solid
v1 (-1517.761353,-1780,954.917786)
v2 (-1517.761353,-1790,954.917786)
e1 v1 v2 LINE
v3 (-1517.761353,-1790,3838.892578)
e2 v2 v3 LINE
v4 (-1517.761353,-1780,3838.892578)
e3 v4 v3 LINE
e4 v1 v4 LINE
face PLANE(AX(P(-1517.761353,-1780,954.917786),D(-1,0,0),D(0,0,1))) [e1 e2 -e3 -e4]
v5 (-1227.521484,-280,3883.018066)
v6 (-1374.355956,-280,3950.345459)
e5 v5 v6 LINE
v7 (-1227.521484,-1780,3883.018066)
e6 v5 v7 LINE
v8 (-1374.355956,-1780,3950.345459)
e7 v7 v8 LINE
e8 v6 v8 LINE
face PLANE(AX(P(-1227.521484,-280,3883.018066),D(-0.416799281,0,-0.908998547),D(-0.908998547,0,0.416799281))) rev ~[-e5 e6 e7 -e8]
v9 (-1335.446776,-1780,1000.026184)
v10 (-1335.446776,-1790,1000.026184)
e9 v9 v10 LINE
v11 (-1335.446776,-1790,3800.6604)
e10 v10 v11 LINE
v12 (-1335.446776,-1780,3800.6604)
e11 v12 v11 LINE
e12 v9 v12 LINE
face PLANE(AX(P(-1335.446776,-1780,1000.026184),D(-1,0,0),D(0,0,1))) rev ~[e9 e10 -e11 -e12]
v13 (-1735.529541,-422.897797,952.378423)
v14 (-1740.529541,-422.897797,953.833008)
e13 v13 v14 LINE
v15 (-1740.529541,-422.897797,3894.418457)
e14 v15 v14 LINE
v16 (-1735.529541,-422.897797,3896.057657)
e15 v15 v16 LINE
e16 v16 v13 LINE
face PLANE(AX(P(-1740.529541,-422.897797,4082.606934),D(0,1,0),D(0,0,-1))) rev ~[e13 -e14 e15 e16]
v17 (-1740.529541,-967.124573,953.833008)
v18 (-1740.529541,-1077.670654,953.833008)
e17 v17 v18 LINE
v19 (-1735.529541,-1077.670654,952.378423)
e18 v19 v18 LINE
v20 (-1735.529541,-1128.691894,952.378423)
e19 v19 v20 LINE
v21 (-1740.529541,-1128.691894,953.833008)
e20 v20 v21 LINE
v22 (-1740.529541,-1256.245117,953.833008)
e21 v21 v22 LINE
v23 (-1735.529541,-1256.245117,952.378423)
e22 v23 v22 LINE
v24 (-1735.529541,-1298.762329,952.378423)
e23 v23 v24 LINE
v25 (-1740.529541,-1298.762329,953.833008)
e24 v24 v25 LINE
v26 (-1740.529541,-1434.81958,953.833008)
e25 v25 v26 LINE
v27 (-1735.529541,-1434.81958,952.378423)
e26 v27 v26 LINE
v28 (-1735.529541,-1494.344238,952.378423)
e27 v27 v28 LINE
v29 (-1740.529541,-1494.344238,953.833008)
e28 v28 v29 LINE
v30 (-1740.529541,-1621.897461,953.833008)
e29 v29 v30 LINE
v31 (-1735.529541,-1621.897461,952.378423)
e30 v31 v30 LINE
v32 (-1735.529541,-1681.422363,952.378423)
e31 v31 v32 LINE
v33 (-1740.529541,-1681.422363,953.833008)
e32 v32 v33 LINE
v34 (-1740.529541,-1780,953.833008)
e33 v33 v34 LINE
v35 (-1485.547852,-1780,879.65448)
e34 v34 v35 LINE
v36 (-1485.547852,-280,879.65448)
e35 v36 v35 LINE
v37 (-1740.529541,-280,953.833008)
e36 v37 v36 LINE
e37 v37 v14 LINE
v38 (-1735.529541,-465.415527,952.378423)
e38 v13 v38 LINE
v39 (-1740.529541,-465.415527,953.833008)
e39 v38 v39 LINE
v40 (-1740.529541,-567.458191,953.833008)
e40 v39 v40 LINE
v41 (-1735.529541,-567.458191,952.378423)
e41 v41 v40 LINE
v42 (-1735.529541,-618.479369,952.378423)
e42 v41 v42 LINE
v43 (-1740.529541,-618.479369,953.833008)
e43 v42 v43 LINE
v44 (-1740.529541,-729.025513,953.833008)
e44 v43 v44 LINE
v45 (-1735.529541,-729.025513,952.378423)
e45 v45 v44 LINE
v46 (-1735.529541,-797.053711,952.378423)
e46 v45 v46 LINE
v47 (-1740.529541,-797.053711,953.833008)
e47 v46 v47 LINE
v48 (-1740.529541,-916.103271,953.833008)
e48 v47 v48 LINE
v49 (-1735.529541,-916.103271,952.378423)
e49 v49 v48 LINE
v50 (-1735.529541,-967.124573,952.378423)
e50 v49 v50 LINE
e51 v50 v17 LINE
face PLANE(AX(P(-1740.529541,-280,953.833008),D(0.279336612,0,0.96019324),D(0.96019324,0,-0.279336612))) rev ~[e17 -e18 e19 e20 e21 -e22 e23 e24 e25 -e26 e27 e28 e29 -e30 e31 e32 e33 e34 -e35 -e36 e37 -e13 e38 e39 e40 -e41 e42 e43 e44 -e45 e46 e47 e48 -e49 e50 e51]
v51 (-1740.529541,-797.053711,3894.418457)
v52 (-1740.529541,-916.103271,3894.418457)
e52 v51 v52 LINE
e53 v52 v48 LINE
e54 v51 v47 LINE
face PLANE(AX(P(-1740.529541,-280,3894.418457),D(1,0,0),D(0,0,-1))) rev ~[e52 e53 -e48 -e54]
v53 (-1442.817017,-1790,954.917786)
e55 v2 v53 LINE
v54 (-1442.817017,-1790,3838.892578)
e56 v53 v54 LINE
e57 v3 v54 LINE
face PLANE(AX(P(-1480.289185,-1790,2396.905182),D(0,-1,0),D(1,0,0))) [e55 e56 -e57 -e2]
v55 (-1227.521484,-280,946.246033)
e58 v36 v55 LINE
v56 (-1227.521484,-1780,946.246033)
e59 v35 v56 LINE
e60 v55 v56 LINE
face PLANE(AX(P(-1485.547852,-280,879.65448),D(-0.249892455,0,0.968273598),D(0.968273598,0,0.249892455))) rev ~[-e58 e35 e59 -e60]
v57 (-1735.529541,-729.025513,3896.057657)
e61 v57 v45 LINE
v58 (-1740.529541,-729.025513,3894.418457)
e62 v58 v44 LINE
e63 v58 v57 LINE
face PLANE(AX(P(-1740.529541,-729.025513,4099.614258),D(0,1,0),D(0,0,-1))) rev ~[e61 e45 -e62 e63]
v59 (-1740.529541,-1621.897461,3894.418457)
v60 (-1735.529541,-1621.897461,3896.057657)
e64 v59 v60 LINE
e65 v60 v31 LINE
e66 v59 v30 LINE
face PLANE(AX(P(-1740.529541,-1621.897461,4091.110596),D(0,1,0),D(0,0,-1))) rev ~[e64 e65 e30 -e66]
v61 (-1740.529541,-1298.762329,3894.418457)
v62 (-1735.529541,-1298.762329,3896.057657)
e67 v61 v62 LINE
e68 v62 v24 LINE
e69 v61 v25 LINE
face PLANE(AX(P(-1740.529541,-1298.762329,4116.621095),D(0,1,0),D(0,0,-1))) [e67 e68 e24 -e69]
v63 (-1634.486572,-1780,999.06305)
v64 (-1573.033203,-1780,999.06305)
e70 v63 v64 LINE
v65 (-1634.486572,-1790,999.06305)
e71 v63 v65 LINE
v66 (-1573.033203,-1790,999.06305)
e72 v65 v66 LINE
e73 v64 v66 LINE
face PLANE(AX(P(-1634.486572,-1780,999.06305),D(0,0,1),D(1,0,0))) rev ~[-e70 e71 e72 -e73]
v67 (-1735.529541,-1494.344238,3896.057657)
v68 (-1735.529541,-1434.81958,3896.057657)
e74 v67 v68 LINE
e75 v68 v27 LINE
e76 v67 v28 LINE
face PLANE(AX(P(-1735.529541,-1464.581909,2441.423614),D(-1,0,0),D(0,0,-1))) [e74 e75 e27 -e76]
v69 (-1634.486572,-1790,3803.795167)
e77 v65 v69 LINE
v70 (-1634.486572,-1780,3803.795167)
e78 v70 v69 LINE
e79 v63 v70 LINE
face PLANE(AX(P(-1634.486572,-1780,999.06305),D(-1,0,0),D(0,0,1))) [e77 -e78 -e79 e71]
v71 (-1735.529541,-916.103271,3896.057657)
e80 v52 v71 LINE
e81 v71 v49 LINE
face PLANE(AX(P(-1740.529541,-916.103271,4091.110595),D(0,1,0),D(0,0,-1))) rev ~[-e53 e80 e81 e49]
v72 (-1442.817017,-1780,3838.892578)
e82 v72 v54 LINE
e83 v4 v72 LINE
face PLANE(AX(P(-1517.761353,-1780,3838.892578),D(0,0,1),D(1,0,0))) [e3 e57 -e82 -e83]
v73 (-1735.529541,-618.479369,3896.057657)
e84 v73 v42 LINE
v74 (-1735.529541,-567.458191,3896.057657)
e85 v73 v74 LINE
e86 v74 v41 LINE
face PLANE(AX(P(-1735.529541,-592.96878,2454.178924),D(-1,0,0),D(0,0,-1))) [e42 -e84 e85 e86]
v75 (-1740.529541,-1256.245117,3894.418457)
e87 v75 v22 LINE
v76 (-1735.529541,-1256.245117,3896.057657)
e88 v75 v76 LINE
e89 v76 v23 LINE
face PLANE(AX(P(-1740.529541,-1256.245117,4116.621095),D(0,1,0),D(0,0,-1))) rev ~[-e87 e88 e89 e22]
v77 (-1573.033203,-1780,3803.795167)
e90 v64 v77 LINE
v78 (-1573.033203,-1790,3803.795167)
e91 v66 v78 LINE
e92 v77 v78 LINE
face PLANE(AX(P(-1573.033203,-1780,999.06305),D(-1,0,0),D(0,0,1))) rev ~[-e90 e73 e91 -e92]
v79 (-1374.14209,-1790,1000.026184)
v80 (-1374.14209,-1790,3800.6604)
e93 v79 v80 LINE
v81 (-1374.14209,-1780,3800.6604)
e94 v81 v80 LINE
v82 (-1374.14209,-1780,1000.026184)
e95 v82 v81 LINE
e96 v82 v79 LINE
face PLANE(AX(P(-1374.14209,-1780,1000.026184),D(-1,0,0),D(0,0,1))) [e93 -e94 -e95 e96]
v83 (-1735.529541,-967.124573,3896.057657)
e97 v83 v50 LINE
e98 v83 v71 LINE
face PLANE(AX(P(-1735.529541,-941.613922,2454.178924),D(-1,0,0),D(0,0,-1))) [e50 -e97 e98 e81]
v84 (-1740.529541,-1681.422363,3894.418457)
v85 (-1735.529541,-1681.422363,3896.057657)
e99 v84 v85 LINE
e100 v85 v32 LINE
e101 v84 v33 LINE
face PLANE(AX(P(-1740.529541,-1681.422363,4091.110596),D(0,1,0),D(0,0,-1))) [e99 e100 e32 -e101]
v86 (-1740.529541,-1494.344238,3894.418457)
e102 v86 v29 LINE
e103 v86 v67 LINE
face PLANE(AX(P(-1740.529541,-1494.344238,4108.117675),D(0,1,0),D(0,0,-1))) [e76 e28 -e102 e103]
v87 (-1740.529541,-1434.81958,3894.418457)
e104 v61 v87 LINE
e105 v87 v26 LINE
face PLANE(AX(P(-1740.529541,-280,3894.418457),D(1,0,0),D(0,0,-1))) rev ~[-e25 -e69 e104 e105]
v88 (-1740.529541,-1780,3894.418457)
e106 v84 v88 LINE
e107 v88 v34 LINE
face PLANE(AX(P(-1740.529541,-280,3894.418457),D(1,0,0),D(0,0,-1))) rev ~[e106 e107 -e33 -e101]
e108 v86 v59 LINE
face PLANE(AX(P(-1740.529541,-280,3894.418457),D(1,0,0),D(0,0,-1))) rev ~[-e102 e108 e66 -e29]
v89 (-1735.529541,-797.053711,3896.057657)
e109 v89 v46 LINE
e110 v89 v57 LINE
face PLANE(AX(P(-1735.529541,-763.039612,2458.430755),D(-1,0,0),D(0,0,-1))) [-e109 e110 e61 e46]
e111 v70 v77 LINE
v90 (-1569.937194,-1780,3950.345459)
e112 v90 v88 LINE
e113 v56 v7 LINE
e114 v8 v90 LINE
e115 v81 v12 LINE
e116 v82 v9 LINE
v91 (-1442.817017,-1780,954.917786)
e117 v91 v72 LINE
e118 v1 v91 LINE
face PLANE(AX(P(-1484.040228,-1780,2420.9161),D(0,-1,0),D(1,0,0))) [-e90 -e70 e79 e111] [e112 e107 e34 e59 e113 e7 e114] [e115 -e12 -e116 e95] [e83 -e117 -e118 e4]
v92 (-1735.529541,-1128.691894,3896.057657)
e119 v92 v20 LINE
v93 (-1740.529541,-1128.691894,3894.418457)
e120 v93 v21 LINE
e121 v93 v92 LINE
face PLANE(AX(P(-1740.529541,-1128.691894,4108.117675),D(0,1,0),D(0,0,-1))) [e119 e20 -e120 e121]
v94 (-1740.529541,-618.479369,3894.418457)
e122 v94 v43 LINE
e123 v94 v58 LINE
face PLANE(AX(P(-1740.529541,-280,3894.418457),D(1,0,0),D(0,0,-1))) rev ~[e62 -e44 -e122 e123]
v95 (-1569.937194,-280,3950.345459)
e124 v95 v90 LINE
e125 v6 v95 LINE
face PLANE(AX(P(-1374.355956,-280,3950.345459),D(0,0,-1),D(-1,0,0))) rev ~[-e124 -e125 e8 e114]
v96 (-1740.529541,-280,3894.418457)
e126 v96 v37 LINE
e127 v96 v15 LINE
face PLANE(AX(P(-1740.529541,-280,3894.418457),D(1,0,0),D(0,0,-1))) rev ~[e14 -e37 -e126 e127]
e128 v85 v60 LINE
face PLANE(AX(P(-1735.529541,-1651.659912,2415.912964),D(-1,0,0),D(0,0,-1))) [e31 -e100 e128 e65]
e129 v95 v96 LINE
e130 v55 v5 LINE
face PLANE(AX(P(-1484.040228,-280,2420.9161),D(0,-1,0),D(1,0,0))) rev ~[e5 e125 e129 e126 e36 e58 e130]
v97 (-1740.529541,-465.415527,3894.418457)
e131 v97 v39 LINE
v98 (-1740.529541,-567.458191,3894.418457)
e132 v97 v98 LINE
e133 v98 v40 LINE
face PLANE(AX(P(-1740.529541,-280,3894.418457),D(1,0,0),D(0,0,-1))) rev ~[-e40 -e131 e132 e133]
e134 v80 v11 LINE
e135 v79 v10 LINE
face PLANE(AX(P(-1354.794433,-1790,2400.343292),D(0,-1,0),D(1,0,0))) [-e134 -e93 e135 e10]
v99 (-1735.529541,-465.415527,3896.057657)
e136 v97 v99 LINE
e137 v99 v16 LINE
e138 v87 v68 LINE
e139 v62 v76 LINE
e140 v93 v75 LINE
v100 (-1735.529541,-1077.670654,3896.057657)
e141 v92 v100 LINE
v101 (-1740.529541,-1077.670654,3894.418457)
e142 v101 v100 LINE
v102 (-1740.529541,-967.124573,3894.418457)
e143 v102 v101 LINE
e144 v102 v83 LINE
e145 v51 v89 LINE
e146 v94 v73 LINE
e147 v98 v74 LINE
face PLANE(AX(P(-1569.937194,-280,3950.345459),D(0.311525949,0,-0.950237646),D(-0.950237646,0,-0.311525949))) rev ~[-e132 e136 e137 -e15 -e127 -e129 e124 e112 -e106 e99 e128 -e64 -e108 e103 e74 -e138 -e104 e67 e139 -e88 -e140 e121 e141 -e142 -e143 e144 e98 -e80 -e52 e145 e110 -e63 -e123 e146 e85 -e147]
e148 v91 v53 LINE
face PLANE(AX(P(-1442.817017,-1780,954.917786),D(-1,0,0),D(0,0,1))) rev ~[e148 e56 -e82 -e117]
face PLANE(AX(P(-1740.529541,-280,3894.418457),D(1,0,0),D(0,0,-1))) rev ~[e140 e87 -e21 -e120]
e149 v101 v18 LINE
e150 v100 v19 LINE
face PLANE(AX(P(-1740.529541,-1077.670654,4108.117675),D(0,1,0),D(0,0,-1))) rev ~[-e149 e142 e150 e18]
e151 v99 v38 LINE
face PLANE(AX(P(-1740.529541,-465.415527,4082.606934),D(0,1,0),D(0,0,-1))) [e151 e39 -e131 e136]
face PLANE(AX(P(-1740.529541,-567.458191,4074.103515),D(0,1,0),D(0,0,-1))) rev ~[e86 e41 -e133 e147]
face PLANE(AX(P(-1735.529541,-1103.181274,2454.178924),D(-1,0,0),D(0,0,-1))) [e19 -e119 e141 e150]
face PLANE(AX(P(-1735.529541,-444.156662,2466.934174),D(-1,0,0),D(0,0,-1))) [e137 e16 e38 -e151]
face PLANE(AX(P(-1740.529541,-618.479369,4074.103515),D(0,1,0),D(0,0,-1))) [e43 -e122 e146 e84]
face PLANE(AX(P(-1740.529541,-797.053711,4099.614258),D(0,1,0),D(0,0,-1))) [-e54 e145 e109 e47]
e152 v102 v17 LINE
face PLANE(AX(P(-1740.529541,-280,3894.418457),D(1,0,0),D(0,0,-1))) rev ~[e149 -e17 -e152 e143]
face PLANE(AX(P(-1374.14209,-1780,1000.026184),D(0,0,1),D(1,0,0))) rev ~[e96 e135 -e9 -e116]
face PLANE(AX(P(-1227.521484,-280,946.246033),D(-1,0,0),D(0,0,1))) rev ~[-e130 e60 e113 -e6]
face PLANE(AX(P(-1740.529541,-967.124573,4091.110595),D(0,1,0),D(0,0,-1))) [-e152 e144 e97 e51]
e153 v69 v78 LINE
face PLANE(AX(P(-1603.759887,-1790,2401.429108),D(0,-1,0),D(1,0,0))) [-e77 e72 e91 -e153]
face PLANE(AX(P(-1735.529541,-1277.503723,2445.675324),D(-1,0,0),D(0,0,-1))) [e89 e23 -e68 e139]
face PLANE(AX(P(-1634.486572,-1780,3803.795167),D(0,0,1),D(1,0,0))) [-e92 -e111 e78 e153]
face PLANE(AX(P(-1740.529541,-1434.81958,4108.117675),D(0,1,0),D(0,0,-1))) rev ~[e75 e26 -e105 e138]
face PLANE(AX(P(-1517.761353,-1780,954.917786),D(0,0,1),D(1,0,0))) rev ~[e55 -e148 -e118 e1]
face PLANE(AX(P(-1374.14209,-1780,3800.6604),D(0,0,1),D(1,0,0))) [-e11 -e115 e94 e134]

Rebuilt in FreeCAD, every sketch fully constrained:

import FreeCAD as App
import Part
import Sketcher
from FreeCAD import Vector


def add_polygon(sketch, points):
    """Adds a closed chain of lines whose ends are joined by coincident constraints."""
    first, n = sketch.GeometryCount, len(points)
    for a, b in zip(points, points[1:] + points[:1]):
        sketch.addGeometry(Part.LineSegment(App.Vector(*a, 0), App.Vector(*b, 0)), False)
    for i in range(n):
        sketch.addConstraint(Sketcher.Constraint("Coincident", first + i, 2, first + (i + 1) % n, 1))

doc = App.newDocument("Part")
params = doc.addObject("Spreadsheet::Sheet", "Params")
for row, (alias, value) in enumerate([
    ("pad1_length", "1500 mm"),
    ("pocket1_length", "5 mm"),
    ("pad2_length", "10 mm"),
], start=1):
    params.set(f"A{row}", alias)
    params.set(f"B{row}", "=" + value)
    params.setAlias(f"B{row}", alias)

body = doc.addObject("PartDesign::Body", "Body")

sketch1 = doc.addObject("Sketcher::SketchObject", "Sketch")
body.addObject(sketch1)
sketch1.AttachmentSupport = (doc.XZ_Plane, [""])
sketch1.MapMode = "FlatFace"
add_polygon(sketch1, [(-1193, 3875), (-1193, 935), (-938, 861), (-680, 927), (-680, 3864), (-826, 3931), (-1022, 3931)])
sketch1.addConstraint([
    Sketcher.Constraint("Vertical", 0),
    Sketcher.Constraint("Vertical", 3),
    Sketcher.Constraint("Horizontal", 5),
    Sketcher.Constraint("DistanceY", 6, 2, 5, 2, 55.927002),
    Sketcher.Constraint("DistanceY", 0, 2, 0, 1, 2940.585449),
    Sketcher.Constraint("Distance", 4, 161.534331),
    Sketcher.Constraint("DistanceX", 5, 2, 5, 1, 195.581238),
    Sketcher.Constraint("DistanceY", 3, 1, 3, 2, 2936.772033),
    Sketcher.Constraint("DistanceX", 0, 2, -1, 1, 1192.529541),
    Sketcher.Constraint("DistanceY", -1, 1, 0, 2, 934.833008),
    Sketcher.Constraint("DistanceX", 1, 2, -1, 1, 937.547852),
    Sketcher.Constraint("DistanceY", -1, 1, 1, 2, 860.65448),
    Sketcher.Constraint("DistanceX", 1, 2, 2, 2, 258.026368),
    Sketcher.Constraint("DistanceY", 0, 2, 3, 2, 2929.185058),
])
pad1 = doc.addObject("PartDesign::Pad", "Pad")
body.addObject(pad1)
pad1.Profile = sketch1
pad1.setExpression("Length", "Params.pad1_length")

sketch2 = doc.addObject("Sketcher::SketchObject", "Sketch001")
body.addObject(sketch2)
sketch2.AttachmentSupport = (doc.YZ_Plane, [""])
sketch2.MapMode = "FlatFace"
sketch2.AttachmentOffset = App.Placement(Vector(0, 0, -1192.529541), App.Rotation())
add_polygon(sketch2, [(-185, 4064), (-143, 4064), (-143, 832), (-185, 832)])
add_polygon(sketch2, [(-338, 4055), (-287, 4055), (-287, 815), (-338, 815)])
add_polygon(sketch2, [(-517, 4081), (-449, 4081), (-449, 798), (-517, 798)])
add_polygon(sketch2, [(-687, 4072), (-636, 4072), (-636, 798), (-687, 798)])
add_polygon(sketch2, [(-849, 4089), (-798, 4089), (-798, 781), (-849, 781)])
add_polygon(sketch2, [(-1019, 4098), (-976, 4098), (-976, 756), (-1019, 756)])
add_polygon(sketch2, [(-1214, 4089), (-1155, 4089), (-1155, 756), (-1214, 756)])
add_polygon(sketch2, [(-1401, 4072), (-1342, 4072), (-1342, 722), (-1401, 722)])
sketch2.addConstraint([
    Sketcher.Constraint("Horizontal", 0),
    Sketcher.Constraint("Vertical", 1),
    Sketcher.Constraint("Horizontal", 2),
    Sketcher.Constraint("Vertical", 3),
    Sketcher.Constraint("Horizontal", 4),
    Sketcher.Constraint("Vertical", 5),
    Sketcher.Constraint("Horizontal", 6),
    Sketcher.Constraint("Vertical", 7),
    Sketcher.Constraint("Horizontal", 8),
    Sketcher.Constraint("Vertical", 9),
    Sketcher.Constraint("Horizontal", 10),
    Sketcher.Constraint("Vertical", 11),
    Sketcher.Constraint("Horizontal", 12),
    Sketcher.Constraint("Vertical", 13),
    Sketcher.Constraint("Horizontal", 14),
    Sketcher.Constraint("Vertical", 15),
    Sketcher.Constraint("Horizontal", 16),
    Sketcher.Constraint("Vertical", 17),
    Sketcher.Constraint("Horizontal", 18),
    Sketcher.Constraint("Vertical", 19),
    Sketcher.Constraint("Horizontal", 20),
    Sketcher.Constraint("Vertical", 21),
    Sketcher.Constraint("Horizontal", 22),
    Sketcher.Constraint("Vertical", 23),
    Sketcher.Constraint("Horizontal", 24),
    Sketcher.Constraint("Vertical", 25),
    Sketcher.Constraint("Horizontal", 26),
    Sketcher.Constraint("Vertical", 27),
    Sketcher.Constraint("Horizontal", 28),
    Sketcher.Constraint("Vertical", 29),
    Sketcher.Constraint("Horizontal", 30),
    Sketcher.Constraint("Vertical", 31),
    Sketcher.Constraint("Horizontal", 10, 2, 13, 2),
    Sketcher.Constraint("Horizontal", 19, 2, 24, 2),
    Sketcher.Constraint("Horizontal", 22, 2, 25, 2),
    Sketcher.Constraint("Horizontal", 15, 2, 28, 2),
    Sketcher.Constraint("DistanceX", 8, 1, 8, 2, 68.028198),
    Sketcher.Constraint("DistanceX", 28, 1, 28, 2, 59.524902),
    Sketcher.Constraint("DistanceX", 0, 1, 0, 2, 42.51773),
    Sketcher.Constraint("DistanceX", 4, 1, 4, 2, 51.021179),
    Sketcher.Constraint("DistanceX", 16, 1, 16, 2, 51.021241),
    Sketcher.Constraint("DistanceX", 20, 1, 20, 2, 42.517212),
    Sketcher.Constraint("DistanceY", 1, 2, 1, 1, 3231.34552),
    Sketcher.Constraint("DistanceY", 21, 2, 21, 1, 3341.891541),
    Sketcher.Constraint("DistanceY", 2, 2, 4, 2, 3222.842101),
    Sketcher.Constraint("DistanceY", 5, 2, 3, 2, 3248.352601),
    Sketcher.Constraint("DistanceX", 12, 2, 7, 2, 297.623901),
    Sketcher.Constraint("DistanceY", 15, 2, 20, 2, 25.510499),
    Sketcher.Constraint("DistanceY", 21, 2, 14, 2, 42.517699),
    Sketcher.Constraint("DistanceX", 12, 1, 12, 2, 51.021302),
    Sketcher.Constraint("DistanceX", 24, 1, 24, 2, 59.524658),
    Sketcher.Constraint("DistanceY", 9, 2, 9, 1, 3282.367005),
    Sketcher.Constraint("DistanceY", 17, 2, 17, 1, 3307.877503),
    Sketcher.Constraint("DistanceY", 25, 2, 25, 1, 3333.388123),
    Sketcher.Constraint("DistanceY", 29, 2, 29, 1, 3350.395264),
    Sketcher.Constraint("DistanceX", 4, 2, -1, 1, 287.458191),
    Sketcher.Constraint("DistanceX", 10, 2, -1, 1, 517.053711),
    Sketcher.Constraint("DistanceX", 22, 2, -1, 1, 1018.762329),
    Sketcher.Constraint("DistanceX", 24, 2, -1, 1, 1154.81958),
    Sketcher.Constraint("DistanceX", 28, 2, -1, 1, 1341.897461),
    Sketcher.Constraint("DistanceY", -1, 1, 29, 2, 721.715332),
    Sketcher.Constraint("DistanceY", 7, 2, 8, 2, 25.510742),
    Sketcher.Constraint("DistanceX", 16, 2, 15, 2, 110.54608),
    Sketcher.Constraint("DistanceX", 0, 2, -1, 1, 142.897797),
])
pocket1 = doc.addObject("PartDesign::Pocket", "Pocket")
body.addObject(pocket1)
pocket1.Profile = sketch2
pocket1.setExpression("Length", "Params.pocket1_length")
pocket1.Reversed = True

sketch3 = doc.addObject("Sketcher::SketchObject", "Sketch002")
body.addObject(sketch3)
sketch3.AttachmentSupport = (doc.XZ_Plane, [""])
sketch3.MapMode = "FlatFace"
sketch3.AttachmentOffset = App.Placement(Vector(0, 0, 1500), App.Rotation())
add_polygon(sketch3, [(-1086, 3785), (-1086, 980), (-1025, 980), (-1025, 3785)])
add_polygon(sketch3, [(-970, 3820), (-970, 936), (-895, 936), (-895, 3820)])
add_polygon(sketch3, [(-826, 3782), (-826, 981), (-787, 981), (-787, 3782)])
sketch3.addConstraint([
    Sketcher.Constraint("Vertical", 0),
    Sketcher.Constraint("Horizontal", 1),
    Sketcher.Constraint("Vertical", 2),
    Sketcher.Constraint("Horizontal", 3),
    Sketcher.Constraint("Vertical", 4),
    Sketcher.Constraint("Horizontal", 5),
    Sketcher.Constraint("Vertical", 6),
    Sketcher.Constraint("Horizontal", 7),
    Sketcher.Constraint("Vertical", 8),
    Sketcher.Constraint("Horizontal", 9),
    Sketcher.Constraint("Vertical", 10),
    Sketcher.Constraint("Horizontal", 11),
    Sketcher.Constraint("DistanceX", 1, 1, 1, 2, 61.453369),
    Sketcher.Constraint("DistanceY", 4, 2, 4, 1, 2883.974792),
    Sketcher.Constraint("DistanceY", -1, 1, 10, 2, 3781.6604),
    Sketcher.Constraint("DistanceX", 5, 1, 5, 2, 74.944336),
    Sketcher.Constraint("DistanceX", 9, 1, 9, 2, 38.695313),
    Sketcher.Constraint("DistanceY", 0, 2, 0, 1, 2804.732117),
    Sketcher.Constraint("DistanceY", 8, 2, 8, 1, 2800.634216),
    Sketcher.Constraint("DistanceX", 0, 2, -1, 1, 1086.486572),
    Sketcher.Constraint("DistanceY", -1, 1, 0, 2, 980.06305),
    Sketcher.Constraint("DistanceX", 8, 2, -1, 1, 826.142089),
    Sketcher.Constraint("DistanceX", 1, 2, 4, 2, 55.27185),
    Sketcher.Constraint("DistanceY", 4, 2, 2, 2, 2848.877381),
])
pad2 = doc.addObject("PartDesign::Pad", "Pad001")
body.addObject(pad2)
pad2.Profile = sketch3
pad2.setExpression("Length", "Params.pad2_length")
body2 = doc.addObject("PartDesign::Body", "Body001")
doc.recompute()

body.Placement = App.Placement(Vector(-548, -280, 19), App.Rotation(Vector(0, 0, 1), 0))
boolean = doc.addObject("PartDesign::Boolean", "Boolean")
body2.addObject(boolean)
boolean.Type = "Fuse"
boolean.addObjects([body])

doc.recompute()
